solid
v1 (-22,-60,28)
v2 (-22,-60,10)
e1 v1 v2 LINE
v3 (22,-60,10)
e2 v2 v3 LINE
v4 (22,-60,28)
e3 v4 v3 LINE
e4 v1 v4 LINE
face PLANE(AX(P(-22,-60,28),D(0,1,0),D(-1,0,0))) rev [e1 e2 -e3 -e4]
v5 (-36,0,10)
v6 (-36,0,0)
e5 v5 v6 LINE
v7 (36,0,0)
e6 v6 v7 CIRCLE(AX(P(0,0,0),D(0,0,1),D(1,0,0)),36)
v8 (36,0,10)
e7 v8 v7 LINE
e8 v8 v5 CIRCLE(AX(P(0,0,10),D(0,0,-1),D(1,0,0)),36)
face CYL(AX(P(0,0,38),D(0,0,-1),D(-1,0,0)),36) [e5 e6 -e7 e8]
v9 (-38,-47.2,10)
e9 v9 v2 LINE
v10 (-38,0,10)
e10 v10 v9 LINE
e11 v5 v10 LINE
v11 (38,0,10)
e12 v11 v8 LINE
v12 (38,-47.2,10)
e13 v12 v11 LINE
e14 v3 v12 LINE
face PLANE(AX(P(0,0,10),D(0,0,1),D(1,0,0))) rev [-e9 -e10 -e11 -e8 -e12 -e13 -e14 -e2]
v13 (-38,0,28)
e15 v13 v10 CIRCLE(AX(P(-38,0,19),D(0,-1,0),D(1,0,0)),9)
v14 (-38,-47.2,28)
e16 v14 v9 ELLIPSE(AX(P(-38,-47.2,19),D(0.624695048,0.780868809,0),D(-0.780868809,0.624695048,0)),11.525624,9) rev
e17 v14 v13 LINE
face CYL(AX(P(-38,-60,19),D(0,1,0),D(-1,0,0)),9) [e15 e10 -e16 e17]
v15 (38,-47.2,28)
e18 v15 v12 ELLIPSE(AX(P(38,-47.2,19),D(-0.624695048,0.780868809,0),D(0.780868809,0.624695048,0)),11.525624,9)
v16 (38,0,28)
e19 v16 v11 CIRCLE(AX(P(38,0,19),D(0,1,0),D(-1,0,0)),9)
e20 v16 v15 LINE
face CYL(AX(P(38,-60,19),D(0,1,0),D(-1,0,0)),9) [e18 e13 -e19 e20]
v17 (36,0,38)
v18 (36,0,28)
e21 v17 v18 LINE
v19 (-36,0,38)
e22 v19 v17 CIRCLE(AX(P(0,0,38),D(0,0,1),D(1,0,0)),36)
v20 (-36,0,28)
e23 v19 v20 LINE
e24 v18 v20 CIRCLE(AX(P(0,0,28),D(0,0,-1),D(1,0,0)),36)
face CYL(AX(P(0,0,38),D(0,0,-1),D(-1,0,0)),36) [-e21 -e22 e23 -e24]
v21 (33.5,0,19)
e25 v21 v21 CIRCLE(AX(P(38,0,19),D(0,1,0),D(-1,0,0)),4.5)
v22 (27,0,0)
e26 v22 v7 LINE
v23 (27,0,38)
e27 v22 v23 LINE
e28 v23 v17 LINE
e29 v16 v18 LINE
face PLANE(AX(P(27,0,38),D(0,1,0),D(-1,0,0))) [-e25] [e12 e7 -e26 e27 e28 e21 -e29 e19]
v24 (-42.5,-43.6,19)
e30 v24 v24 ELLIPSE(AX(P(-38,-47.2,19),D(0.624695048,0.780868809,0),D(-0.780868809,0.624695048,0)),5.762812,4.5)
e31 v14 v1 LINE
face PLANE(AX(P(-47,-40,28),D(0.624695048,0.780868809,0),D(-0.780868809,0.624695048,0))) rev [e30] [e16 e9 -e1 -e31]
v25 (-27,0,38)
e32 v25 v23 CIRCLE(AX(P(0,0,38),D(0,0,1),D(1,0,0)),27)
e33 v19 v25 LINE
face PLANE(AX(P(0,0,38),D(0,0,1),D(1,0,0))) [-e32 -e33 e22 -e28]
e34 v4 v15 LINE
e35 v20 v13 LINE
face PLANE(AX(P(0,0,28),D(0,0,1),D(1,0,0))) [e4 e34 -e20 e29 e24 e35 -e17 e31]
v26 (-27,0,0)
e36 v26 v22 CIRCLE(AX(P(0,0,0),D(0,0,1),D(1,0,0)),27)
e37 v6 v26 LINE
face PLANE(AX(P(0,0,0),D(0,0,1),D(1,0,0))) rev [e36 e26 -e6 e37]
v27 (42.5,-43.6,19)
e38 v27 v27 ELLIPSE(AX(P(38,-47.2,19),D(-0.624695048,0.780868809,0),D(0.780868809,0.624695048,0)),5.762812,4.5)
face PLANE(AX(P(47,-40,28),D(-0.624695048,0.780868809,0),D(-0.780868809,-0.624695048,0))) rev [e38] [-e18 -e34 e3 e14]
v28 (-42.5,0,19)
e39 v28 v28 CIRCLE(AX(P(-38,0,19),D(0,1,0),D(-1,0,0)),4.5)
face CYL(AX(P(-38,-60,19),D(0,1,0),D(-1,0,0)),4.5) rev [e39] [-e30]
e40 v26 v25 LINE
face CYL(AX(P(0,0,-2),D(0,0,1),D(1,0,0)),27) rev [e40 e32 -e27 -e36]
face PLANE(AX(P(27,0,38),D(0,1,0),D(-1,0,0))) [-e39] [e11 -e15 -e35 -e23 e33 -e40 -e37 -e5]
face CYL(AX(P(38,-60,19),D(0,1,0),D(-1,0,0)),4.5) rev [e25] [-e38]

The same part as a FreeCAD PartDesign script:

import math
import FreeCAD as App
import Part
import Sketcher

V = App.Vector

doc = App.newDocument("Part")
body = doc.addObject("PartDesign::Body", "Body")

# Sketch on XY plane
sketch1 = body.newObject("Sketcher::SketchObject", "Sketch")
sketch1.AttachmentSupport = (doc.getObject("XY_Plane"), [""])
sketch1.MapMode = "FlatFace"
sketch1.addGeometry([
    Part.ArcOfCircle(Part.Circle(V(0, 0, 0), V(0, 0, 1), 36), math.radians(180), math.radians(360)),
    Part.LineSegment(V(36, 0, 0), V(-36, 0, 0)),
], False)
sketch1.addConstraint([
    Sketcher.Constraint("Coincident", 0, 1, 1, 2),
    Sketcher.Constraint("Coincident", 1, 1, 0, 2),
    Sketcher.Constraint("Horizontal", 1),
    Sketcher.Constraint("Coincident", 0, 3, -1, 1),
    Sketcher.Constraint("PointOnObject", 0, 1, -1),
    Sketcher.Constraint("Radius", 0, 36.0),
])
pad1 = body.newObject("PartDesign::Pad", "Pad")
pad1.Profile = sketch1
pad1.Length = 38

# Sketch on XY plane
sketch2 = body.newObject("Sketcher::SketchObject", "Sketch001")
sketch2.AttachmentSupport = (doc.getObject("XY_Plane"), [""])
sketch2.MapMode = "FlatFace"
sketch2.AttachmentOffset = App.Placement(V(0, 0, 19), App.Rotation())
sketch2.addGeometry([
    Part.LineSegment(V(-36, 0, 0), V(-47, 0, 0)),  # 0
    Part.LineSegment(V(-47, 0, 0), V(-47, -40, 0)),  # 1
    Part.LineSegment(V(-47, -40, 0), V(-22, -60, 0)),  # 2
    Part.LineSegment(V(-22, -60, 0), V(22, -60, 0)),  # 3
    Part.LineSegment(V(22, -60, 0), V(47, -40, 0)),  # 4
    Part.LineSegment(V(47, -40, 0), V(47, 0, 0)),  # 5
    Part.LineSegment(V(47, 0, 0), V(36, 0, 0)),  # 6
    Part.ArcOfCircle(Part.Circle(V(0, 0, 0), V(0, 0, 1), 36), math.radians(180), math.radians(360)),  # 7
], False)
sketch2.addConstraint([
    Sketcher.Constraint("Coincident", 0, 2, 1, 1),
    Sketcher.Constraint("Coincident", 1, 2, 2, 1),
    Sketcher.Constraint("Coincident", 2, 2, 3, 1),
    Sketcher.Constraint("Coincident", 3, 2, 4, 1),
    Sketcher.Constraint("Coincident", 4, 2, 5, 1),
    Sketcher.Constraint("Coincident", 5, 2, 6, 1),
    Sketcher.Constraint("Coincident", 6, 2, 7, 2),
    Sketcher.Constraint("Coincident", 7, 1, 0, 1),
    Sketcher.Constraint("Horizontal", 0),
    Sketcher.Constraint("Vertical", 1),
    Sketcher.Constraint("Horizontal", 3),
    Sketcher.Constraint("Vertical", 5),
    Sketcher.Constraint("Horizontal", 6),
    Sketcher.Constraint("Coincident", 7, 3, -1, 1),
    Sketcher.Constraint("Symmetric", 0, 2, 5, 2, -1, 1),
    Sketcher.Constraint("PointOnObject", 0, 2, -1),
    Sketcher.Constraint("Horizontal", 1, 2, 4, 2),
    Sketcher.Constraint("Equal", 2, 4),
    Sketcher.Constraint("Radius", 7, 36.0),
    Sketcher.Constraint("DistanceX", 0, 2, 0, 1, 11.0),
    Sketcher.Constraint("DistanceX", 3, 1, 3, 2, 44.0),
    Sketcher.Constraint("DistanceY", 1, 2, 1, 1, 40.0),
    Sketcher.Constraint("DistanceY", 2, 2, -1, 1, 60.0),
])
pad2 = body.newObject("PartDesign::Pad", "Pad001")
pad2.Profile = sketch2
pad2.Length = 18
pad2.Midplane = True

# Sketch on XZ plane
sketch3 = body.newObject("Sketcher::SketchObject", "Sketch002")
sketch3.AttachmentSupport = (doc.getObject("XZ_Plane"), [""])
sketch3.MapMode = "FlatFace"
sketch3.addGeometry([
    Part.Circle(V(-38, 19, 0), V(0, 0, 1), 9),
    Part.Circle(V(38, 19, 0), V(0, 0, 1), 9),
], False)
sketch3.addConstraint([
    Sketcher.Constraint("Equal", 0, 1),
    Sketcher.Constraint("Symmetric", 0, 3, 1, 3, -2),
    Sketcher.Constraint("Diameter", 0, 18.0),
    Sketcher.Constraint("DistanceX", 0, 3, -1, 1, 38.0),
    Sketcher.Constraint("DistanceY", -1, 1, 0, 3, 19.0),
])
pad3 = body.newObject("PartDesign::Pad", "Pad002")
pad3.Profile = sketch3
pad3.Length = 40

# Sketch on XZ plane
sketch4 = body.newObject("Sketcher::SketchObject", "Sketch003")
sketch4.AttachmentSupport = (doc.getObject("XZ_Plane"), [""])
sketch4.MapMode = "FlatFace"
sketch4.addGeometry([
    Part.LineSegment(V(-47, 10, 0), V(-47, 19, 0)),
    Part.ArcOfCircle(Part.Circle(V(-38, 19, 0), V(0, 0, 1), 9), math.radians(180), math.radians(270)),
    Part.LineSegment(V(-38, 10, 0), V(-47, 10, 0)),
], False)
sketch4.addConstraint([
    Sketcher.Constraint("Tangent", 0, 2, 1, 1),
    Sketcher.Constraint("Tangent", 1, 2, 2, 1),
    Sketcher.Constraint("Coincident", 2, 2, 0, 1),
    Sketcher.Constraint("Vertical", 0),
    Sketcher.Constraint("Horizontal", 2),
    Sketcher.Constraint("Radius", 1, 9.0),
    Sketcher.Constraint("DistanceX", 1, 3, -1, 1, 38.0),
    Sketcher.Constraint("DistanceY", -1, 1, 1, 3, 19.0),
])
pocket1 = body.newObject("PartDesign::Pocket", "Pocket")
pocket1.Profile = sketch4
pocket1.Type = "ThroughAll"
pocket1.Reversed = True
doc.recompute()

datumplane = body.newObject("PartDesign::Plane", "DatumPlane")
datumplane.AttachmentSupport = (doc.getObject("XY_Plane"), [""])
datumplane.MapMode = "FlatFace"
datumplane.AttachmentOffset = App.Placement(V(0, 0, 19), App.Rotation())
mirrored = body.newObject("PartDesign::Mirrored", "Mirrored")
mirrored.Originals = [pocket1]
mirrored.MirrorPlane = (datumplane, [""])
body.Tip = mirrored
doc.recompute()

mirrored2 = body.newObject("PartDesign::Mirrored", "Mirrored001")
mirrored2.Originals = [pocket1]
mirrored2.MirrorPlane = (doc.getObject("YZ_Plane"), [""])
body.Tip = mirrored2

# Sketch on XZ plane
sketch5 = body.newObject("Sketcher::SketchObject", "Sketch004")
sketch5.AttachmentSupport = (doc.getObject("XZ_Plane"), [""])
sketch5.MapMode = "FlatFace"
sketch5.addGeometry([
    Part.LineSegment(V(47, 28, 0), V(47, 19, 0)),
    Part.ArcOfCircle(Part.Circle(V(38, 19, 0), V(0, 0, 1), 9), math.radians(0), math.radians(90)),
    Part.LineSegment(V(38, 28, 0), V(47, 28, 0)),
], False)
sketch5.addConstraint([
    Sketcher.Constraint("Tangent", 0, 2, 1, 1),
    Sketcher.Constraint("Tangent", 1, 2, 2, 1),
    Sketcher.Constraint("Coincident", 2, 2, 0, 1),
    Sketcher.Constraint("Vertical", 0),
    Sketcher.Constraint("Horizontal", 2),
    Sketcher.Constraint("Radius", 1, 9.0),
    Sketcher.Constraint("DistanceX", -1, 1, 1, 3, 38.0),
    Sketcher.Constraint("DistanceY", -1, 1, 1, 3, 19.0),
])
pocket2 = body.newObject("PartDesign::Pocket", "Pocket001")
pocket2.Profile = sketch5
pocket2.Type = "ThroughAll"
pocket2.Reversed = True

# Sketch on XY plane
sketch6 = body.newObject("Sketcher::SketchObject", "Sketch005")
sketch6.AttachmentSupport = (doc.getObject("XY_Plane"), [""])
sketch6.MapMode = "FlatFace"
sketch6.AttachmentOffset = App.Placement(V(0, 0, 38), App.Rotation())
sketch6.addGeometry([
    Part.LineSegment(V(27, 0, 0), V(-27, 0, 0)),
    Part.ArcOfCircle(Part.Circle(V(0, 0, 0), V(0, 0, 1), 27), math.radians(180), math.radians(360)),
], False)
sketch6.addConstraint([
    Sketcher.Constraint("Coincident", 0, 1, 1, 2),
    Sketcher.Constraint("Coincident", 1, 1, 0, 2),
    Sketcher.Constraint("Horizontal", 0),
    Sketcher.Constraint("Coincident", 1, 3, -1, 1),
    Sketcher.Constraint("PointOnObject", 0, 1, -1),
    Sketcher.Constraint("Radius", 1, 27.0),
])
pocket3 = body.newObject("PartDesign::Pocket", "Pocket002")
pocket3.Profile = sketch6
pocket3.Length = 40

# Sketch on XZ plane
sketch7 = body.newObject("Sketcher::SketchObject", "Sketch006")
sketch7.AttachmentSupport = (doc.getObject("XZ_Plane"), [""])
sketch7.MapMode = "FlatFace"
sketch7.addGeometry([
    Part.Circle(V(-38, 19, 0), V(0, 0, 1), 4.5),
    Part.Circle(V(38, 19, 0), V(0, 0, 1), 4.5),
], False)
sketch7.addConstraint([
    Sketcher.Constraint("Equal", 0, 1),
    Sketcher.Constraint("Symmetric", 0, 3, 1, 3, -2),
    Sketcher.Constraint("Diameter", 0, 9.0),
    Sketcher.Constraint("DistanceX", 0, 3, -1, 1, 38.0),
    Sketcher.Constraint("DistanceY", -1, 1, 0, 3, 19.0),
])
pocket4 = body.newObject("PartDesign::Pocket", "Pocket003")
pocket4.Profile = sketch7
pocket4.Type = "ThroughAll"
pocket4.Reversed = True

doc.recompute()
